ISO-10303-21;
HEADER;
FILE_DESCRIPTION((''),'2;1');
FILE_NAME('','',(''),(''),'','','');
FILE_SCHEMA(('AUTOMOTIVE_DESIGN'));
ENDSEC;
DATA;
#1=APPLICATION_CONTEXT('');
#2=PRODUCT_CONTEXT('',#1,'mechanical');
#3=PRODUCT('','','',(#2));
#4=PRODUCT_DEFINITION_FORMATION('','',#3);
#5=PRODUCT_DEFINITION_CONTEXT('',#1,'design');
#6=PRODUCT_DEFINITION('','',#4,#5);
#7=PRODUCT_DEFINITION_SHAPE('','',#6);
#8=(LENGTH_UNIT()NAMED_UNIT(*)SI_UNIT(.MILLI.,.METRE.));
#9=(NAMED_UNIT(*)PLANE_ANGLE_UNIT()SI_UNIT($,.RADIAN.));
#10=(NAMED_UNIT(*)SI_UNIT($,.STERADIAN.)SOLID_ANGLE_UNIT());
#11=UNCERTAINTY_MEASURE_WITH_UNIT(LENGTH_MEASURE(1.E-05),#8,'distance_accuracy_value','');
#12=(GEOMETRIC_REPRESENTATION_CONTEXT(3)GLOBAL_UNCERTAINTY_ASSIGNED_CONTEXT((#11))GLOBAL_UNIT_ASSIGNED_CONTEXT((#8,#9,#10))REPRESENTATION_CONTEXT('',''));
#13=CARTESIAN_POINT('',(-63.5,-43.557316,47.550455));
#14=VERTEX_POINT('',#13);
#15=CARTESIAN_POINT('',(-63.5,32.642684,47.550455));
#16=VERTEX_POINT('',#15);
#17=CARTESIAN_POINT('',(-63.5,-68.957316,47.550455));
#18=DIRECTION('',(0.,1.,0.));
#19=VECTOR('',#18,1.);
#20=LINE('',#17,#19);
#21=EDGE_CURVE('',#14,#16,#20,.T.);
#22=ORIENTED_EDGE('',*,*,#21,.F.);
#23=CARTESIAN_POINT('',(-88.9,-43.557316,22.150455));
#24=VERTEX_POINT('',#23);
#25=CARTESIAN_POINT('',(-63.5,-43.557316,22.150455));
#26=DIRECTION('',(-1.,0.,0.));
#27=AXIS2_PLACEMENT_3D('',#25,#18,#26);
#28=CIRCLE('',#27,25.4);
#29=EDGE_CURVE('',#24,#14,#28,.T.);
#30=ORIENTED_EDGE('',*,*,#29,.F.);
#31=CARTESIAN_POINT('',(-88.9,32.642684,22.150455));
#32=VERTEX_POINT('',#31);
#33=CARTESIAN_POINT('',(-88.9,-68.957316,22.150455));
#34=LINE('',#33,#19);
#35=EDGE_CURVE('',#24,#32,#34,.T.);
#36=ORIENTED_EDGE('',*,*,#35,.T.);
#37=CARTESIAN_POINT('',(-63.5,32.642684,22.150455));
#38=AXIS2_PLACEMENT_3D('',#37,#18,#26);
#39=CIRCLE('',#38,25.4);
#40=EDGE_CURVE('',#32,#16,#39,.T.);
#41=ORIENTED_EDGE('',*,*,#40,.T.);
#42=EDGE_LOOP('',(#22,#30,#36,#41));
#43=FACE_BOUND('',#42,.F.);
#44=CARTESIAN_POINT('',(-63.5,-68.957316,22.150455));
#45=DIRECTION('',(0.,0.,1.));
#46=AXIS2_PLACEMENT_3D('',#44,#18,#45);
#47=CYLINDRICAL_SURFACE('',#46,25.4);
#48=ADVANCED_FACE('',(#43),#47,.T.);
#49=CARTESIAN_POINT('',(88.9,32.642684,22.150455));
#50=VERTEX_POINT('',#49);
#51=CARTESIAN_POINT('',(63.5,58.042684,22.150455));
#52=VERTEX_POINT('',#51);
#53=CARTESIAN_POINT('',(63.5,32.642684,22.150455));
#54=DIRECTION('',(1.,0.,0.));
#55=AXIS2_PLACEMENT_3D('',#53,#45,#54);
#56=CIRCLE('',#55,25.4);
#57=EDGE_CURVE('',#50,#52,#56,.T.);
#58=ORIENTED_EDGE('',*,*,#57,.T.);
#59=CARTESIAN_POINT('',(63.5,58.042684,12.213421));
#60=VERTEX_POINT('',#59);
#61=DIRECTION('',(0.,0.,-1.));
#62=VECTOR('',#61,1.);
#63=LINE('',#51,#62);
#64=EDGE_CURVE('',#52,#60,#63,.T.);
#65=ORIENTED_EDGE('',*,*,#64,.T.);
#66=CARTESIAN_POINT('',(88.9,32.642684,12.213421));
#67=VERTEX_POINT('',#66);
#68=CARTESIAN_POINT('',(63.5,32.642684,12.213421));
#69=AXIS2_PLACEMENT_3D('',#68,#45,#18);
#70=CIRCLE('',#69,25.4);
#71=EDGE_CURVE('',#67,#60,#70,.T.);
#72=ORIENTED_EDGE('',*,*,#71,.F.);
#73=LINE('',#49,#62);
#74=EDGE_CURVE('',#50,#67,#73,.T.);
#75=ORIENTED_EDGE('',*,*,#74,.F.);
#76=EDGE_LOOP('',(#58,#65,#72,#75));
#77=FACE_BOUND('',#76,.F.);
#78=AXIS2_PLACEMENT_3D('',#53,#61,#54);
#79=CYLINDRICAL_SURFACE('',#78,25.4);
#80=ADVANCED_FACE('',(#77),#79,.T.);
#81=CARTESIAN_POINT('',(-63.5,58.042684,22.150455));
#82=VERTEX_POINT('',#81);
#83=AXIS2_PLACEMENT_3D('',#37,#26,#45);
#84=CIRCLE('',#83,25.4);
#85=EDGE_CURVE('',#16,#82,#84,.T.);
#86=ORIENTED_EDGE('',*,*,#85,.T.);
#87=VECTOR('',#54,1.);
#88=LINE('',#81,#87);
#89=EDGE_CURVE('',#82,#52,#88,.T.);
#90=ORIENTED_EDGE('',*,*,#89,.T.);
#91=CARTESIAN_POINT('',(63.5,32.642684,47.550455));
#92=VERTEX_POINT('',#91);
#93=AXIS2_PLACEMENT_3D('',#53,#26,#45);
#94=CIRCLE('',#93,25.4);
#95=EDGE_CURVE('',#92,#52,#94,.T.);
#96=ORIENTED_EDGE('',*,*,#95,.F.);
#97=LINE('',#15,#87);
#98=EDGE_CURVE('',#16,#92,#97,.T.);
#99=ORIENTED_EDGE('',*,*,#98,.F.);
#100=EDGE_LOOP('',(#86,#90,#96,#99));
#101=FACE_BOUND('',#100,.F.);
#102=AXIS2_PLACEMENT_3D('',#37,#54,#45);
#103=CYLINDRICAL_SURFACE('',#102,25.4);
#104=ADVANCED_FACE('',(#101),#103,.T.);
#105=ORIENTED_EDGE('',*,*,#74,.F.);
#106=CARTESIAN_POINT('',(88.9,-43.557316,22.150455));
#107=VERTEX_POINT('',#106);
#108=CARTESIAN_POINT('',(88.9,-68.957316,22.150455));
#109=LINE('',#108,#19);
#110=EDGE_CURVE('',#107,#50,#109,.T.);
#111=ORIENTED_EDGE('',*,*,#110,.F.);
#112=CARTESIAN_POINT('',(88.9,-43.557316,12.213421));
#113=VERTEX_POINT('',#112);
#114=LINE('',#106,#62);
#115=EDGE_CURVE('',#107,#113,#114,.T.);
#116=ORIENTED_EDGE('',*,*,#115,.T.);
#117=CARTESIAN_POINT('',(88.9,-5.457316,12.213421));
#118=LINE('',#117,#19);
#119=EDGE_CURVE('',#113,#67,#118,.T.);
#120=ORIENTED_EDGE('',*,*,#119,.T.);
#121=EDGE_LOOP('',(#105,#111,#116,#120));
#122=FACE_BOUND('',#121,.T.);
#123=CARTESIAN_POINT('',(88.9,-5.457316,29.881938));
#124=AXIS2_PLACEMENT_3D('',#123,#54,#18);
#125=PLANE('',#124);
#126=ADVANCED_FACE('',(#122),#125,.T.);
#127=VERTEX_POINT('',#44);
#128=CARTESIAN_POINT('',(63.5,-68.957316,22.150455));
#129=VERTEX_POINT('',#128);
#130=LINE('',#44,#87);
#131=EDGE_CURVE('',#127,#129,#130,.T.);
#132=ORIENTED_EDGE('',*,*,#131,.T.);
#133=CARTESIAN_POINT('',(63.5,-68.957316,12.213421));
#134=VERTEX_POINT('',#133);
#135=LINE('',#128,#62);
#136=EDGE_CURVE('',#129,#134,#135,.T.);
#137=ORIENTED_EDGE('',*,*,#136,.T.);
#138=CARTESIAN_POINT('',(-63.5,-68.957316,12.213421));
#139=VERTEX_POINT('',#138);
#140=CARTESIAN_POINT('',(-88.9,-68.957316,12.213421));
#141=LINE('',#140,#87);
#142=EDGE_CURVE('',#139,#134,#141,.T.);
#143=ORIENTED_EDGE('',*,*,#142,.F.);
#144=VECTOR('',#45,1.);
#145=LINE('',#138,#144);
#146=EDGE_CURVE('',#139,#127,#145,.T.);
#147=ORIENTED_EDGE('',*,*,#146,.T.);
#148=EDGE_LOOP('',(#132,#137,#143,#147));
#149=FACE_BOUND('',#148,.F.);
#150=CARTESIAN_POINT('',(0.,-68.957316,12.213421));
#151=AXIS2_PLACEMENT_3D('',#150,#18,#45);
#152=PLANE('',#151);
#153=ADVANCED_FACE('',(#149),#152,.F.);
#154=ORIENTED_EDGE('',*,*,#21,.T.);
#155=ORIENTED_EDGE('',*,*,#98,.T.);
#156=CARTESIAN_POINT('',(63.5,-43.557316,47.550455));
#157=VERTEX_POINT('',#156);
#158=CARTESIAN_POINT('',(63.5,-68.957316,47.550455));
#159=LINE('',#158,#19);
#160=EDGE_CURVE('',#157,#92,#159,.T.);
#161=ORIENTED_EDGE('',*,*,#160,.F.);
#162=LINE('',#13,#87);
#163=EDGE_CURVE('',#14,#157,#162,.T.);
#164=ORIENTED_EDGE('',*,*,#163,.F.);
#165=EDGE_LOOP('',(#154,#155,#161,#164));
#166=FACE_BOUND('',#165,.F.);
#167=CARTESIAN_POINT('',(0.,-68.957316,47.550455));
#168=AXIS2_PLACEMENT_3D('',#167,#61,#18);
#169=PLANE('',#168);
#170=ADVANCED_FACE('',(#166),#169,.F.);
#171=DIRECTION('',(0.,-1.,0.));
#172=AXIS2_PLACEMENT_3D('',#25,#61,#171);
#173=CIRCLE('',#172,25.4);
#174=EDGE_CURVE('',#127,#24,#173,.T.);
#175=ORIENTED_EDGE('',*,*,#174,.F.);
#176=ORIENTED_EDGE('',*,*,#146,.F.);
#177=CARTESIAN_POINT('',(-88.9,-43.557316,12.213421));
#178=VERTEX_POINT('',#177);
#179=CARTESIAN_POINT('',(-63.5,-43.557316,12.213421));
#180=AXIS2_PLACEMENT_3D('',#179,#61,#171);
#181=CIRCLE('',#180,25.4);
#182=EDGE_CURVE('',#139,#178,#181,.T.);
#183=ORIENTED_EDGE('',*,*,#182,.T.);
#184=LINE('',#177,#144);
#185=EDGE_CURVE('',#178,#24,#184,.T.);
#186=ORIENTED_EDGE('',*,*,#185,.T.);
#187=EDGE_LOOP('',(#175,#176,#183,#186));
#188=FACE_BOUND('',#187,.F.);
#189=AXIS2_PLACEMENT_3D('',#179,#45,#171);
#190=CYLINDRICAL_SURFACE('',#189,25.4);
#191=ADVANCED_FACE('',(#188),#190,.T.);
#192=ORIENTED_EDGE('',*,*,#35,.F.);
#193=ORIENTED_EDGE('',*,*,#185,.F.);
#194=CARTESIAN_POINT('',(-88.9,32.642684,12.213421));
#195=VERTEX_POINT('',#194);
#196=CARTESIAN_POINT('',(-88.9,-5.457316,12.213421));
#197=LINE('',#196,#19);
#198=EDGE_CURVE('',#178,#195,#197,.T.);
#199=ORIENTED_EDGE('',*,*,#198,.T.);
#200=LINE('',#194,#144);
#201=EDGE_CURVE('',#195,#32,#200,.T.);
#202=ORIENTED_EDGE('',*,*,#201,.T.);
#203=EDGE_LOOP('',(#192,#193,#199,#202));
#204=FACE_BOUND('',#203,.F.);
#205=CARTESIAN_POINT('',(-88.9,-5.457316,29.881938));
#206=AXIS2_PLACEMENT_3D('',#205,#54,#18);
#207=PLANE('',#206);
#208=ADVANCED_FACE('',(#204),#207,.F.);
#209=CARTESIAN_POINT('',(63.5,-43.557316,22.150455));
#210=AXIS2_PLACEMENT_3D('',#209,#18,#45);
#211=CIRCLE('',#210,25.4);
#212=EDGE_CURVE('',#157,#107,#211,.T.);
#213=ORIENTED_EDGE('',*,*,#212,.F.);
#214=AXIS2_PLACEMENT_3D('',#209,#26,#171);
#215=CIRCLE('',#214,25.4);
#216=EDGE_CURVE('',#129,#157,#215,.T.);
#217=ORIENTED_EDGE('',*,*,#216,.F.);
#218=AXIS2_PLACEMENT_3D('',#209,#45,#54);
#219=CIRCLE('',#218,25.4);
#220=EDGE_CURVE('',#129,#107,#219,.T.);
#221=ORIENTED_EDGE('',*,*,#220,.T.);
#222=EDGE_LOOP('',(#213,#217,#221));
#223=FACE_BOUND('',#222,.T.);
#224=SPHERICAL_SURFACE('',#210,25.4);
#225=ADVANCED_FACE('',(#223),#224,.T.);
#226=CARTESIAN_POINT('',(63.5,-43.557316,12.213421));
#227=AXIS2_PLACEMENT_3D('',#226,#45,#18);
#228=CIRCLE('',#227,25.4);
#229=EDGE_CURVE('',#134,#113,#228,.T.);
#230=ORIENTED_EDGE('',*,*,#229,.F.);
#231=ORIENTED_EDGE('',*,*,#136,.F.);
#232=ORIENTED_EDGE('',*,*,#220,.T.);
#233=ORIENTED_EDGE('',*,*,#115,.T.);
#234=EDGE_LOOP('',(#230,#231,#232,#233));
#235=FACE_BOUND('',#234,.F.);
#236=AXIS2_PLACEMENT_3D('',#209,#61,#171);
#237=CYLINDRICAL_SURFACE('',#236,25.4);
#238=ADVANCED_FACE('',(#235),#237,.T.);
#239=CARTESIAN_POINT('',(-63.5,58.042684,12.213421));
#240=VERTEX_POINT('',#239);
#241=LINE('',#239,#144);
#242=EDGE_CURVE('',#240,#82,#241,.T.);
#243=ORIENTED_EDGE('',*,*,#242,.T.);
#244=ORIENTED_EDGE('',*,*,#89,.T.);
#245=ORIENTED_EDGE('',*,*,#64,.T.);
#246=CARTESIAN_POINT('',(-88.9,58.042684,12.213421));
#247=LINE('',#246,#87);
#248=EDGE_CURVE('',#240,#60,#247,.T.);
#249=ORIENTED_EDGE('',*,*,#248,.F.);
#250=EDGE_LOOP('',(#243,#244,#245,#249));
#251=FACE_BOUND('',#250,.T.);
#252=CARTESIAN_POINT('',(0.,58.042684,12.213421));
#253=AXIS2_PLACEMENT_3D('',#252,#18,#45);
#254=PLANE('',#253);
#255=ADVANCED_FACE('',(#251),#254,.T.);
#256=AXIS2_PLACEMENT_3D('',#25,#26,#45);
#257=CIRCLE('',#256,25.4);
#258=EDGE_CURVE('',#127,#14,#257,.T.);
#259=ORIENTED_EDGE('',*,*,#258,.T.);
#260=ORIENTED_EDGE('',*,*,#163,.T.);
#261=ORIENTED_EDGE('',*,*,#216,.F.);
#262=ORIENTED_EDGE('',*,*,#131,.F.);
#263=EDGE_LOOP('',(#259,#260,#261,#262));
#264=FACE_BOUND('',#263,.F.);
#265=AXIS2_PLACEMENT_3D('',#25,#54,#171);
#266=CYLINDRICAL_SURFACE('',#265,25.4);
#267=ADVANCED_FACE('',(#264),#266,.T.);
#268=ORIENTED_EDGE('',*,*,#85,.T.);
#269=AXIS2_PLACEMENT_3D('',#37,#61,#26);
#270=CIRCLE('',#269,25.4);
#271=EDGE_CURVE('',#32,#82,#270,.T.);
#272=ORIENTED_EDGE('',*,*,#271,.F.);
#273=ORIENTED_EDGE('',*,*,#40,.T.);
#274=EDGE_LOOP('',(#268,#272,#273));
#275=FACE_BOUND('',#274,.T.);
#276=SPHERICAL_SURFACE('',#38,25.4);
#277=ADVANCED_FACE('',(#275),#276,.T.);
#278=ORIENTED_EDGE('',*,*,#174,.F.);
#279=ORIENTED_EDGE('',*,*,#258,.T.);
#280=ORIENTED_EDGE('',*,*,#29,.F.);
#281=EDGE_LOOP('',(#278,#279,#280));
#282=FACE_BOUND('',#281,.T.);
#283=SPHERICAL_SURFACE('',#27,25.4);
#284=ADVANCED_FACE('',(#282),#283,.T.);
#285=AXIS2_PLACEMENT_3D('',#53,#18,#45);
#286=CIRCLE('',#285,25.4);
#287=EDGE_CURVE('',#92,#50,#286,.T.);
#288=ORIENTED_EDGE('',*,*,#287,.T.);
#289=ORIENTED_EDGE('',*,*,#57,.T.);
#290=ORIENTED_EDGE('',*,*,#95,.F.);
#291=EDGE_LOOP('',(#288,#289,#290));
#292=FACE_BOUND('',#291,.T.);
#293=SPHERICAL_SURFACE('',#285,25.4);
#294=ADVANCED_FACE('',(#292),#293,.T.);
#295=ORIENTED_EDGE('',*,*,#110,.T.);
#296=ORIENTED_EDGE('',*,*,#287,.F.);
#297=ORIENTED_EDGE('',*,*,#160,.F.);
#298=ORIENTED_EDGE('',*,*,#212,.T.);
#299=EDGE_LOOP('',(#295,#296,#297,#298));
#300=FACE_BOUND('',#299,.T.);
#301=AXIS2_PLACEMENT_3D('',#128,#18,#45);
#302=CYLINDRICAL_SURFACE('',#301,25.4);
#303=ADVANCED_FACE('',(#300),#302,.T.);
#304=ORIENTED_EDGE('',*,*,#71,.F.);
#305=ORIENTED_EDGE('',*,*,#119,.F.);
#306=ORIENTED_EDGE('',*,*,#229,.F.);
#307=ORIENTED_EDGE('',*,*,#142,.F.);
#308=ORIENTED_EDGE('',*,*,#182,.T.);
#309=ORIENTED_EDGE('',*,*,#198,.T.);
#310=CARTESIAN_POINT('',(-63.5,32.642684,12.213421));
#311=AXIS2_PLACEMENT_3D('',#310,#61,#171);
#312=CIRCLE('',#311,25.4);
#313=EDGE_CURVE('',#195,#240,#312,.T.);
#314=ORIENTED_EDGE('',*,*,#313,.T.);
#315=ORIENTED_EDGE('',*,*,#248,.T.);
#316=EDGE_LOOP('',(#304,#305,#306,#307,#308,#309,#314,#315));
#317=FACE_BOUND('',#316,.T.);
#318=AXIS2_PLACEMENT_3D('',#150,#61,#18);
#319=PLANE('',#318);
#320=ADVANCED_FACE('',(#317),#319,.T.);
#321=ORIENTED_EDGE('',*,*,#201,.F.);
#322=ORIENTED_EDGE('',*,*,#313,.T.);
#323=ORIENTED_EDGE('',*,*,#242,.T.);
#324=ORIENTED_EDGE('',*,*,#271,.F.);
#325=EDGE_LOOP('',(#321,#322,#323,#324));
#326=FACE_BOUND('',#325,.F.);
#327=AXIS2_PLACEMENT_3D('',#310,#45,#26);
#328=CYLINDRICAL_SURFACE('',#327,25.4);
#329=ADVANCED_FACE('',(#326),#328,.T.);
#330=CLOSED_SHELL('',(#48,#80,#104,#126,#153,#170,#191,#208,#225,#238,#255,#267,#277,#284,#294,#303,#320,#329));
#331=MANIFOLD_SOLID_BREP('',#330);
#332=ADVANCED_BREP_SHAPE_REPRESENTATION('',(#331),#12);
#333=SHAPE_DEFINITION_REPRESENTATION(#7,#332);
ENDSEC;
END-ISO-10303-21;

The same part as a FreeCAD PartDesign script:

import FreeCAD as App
import Part
import Sketcher

V = App.Vector
Q = App.Units.Quantity


def edges_at(feature, points):
    """Names of the edges that pass closest to the given points."""
    edges = feature.Shape.Edges
    near = lambda p: min(range(len(edges)), key=lambda i: edges[i].distToShape(Part.Vertex(*p))[0])
    return sorted({f"Edge{near(p) + 1}" for p in points})


def add_polygon(sketch, points):
    """Adds a closed chain of lines whose ends are joined by coincident constraints."""
    first, n = sketch.GeometryCount, len(points)
    for a, b in zip(points, points[1:] + points[:1]):
        sketch.addGeometry(Part.LineSegment(App.Vector(*a, 0), App.Vector(*b, 0)), False)
    for i in range(n):
        sketch.addConstraint(Sketcher.Constraint("Coincident", first + i, 2, first + (i + 1) % n, 1))

doc = App.newDocument("Part")
body = doc.addObject("PartDesign::Body", "Body")

# Sketch on YZ plane
sketch1 = doc.addObject("Sketcher::SketchObject", "Sketch")
body.addObject(sketch1)
sketch1.AttachmentSupport = (doc.YZ_Plane, [""])
sketch1.MapMode = "FlatFace"
add_polygon(sketch1, [(-68.957316, 47.550455), (-68.957316, 12.213421), (58.042684, 12.213421), (58.042684, 47.550455)])  # lines 0-3
sketch1.addConstraint([
    Sketcher.Constraint("Vertical", 0),
    Sketcher.Constraint("Horizontal", 1),
    Sketcher.Constraint("Vertical", 2),
    Sketcher.Constraint("Horizontal", 3),
    Sketcher.Constraint("DistanceX", 1, 1, 1, 2, Q("5 in")),
    Sketcher.Constraint("DistanceY", 0, 2, 0, 1, Q("35.337034 mm")),
    Sketcher.Constraint("DistanceY", -1, 1, 0, 2, Q("12.213421 mm")),
    Sketcher.Constraint("DistanceX", 0, 2, -1, 1, Q("68.957316 mm")),
])
pad1 = doc.addObject("PartDesign::Pad", "Pad")
body.addObject(pad1)
pad1.Profile = sketch1
pad1.Length = Q("7 in")
pad1.Midplane = True
doc.recompute()

fillet = doc.addObject("PartDesign::Fillet", "Fillet")
body.addObject(fillet)
fillet.Base = (pad1, edges_at(pad1, [(-88.9, -5.457, 47.55)]))
fillet.Radius = Q("1 in")
doc.recompute()

fillet2 = doc.addObject("PartDesign::Fillet", "Fillet001")
body.addObject(fillet2)
fillet2.Base = (fillet, edges_at(fillet, [(88.9, -5.457, 47.55)]))
fillet2.Radius = Q("1 in")
doc.recompute()

fillet3 = doc.addObject("PartDesign::Fillet", "Fillet002")
body.addObject(fillet3)
fillet3.Base = (fillet2, edges_at(fillet2, [(-88.9, 58.043, 17.182)]))
fillet3.Radius = Q("1 in")
doc.recompute()

fillet4 = doc.addObject("PartDesign::Fillet", "Fillet003")
body.addObject(fillet4)
fillet4.Base = (fillet3, edges_at(fillet3, [(-88.9, -68.957, 17.182)]))
fillet4.Radius = Q("1 in")

doc.recompute()
